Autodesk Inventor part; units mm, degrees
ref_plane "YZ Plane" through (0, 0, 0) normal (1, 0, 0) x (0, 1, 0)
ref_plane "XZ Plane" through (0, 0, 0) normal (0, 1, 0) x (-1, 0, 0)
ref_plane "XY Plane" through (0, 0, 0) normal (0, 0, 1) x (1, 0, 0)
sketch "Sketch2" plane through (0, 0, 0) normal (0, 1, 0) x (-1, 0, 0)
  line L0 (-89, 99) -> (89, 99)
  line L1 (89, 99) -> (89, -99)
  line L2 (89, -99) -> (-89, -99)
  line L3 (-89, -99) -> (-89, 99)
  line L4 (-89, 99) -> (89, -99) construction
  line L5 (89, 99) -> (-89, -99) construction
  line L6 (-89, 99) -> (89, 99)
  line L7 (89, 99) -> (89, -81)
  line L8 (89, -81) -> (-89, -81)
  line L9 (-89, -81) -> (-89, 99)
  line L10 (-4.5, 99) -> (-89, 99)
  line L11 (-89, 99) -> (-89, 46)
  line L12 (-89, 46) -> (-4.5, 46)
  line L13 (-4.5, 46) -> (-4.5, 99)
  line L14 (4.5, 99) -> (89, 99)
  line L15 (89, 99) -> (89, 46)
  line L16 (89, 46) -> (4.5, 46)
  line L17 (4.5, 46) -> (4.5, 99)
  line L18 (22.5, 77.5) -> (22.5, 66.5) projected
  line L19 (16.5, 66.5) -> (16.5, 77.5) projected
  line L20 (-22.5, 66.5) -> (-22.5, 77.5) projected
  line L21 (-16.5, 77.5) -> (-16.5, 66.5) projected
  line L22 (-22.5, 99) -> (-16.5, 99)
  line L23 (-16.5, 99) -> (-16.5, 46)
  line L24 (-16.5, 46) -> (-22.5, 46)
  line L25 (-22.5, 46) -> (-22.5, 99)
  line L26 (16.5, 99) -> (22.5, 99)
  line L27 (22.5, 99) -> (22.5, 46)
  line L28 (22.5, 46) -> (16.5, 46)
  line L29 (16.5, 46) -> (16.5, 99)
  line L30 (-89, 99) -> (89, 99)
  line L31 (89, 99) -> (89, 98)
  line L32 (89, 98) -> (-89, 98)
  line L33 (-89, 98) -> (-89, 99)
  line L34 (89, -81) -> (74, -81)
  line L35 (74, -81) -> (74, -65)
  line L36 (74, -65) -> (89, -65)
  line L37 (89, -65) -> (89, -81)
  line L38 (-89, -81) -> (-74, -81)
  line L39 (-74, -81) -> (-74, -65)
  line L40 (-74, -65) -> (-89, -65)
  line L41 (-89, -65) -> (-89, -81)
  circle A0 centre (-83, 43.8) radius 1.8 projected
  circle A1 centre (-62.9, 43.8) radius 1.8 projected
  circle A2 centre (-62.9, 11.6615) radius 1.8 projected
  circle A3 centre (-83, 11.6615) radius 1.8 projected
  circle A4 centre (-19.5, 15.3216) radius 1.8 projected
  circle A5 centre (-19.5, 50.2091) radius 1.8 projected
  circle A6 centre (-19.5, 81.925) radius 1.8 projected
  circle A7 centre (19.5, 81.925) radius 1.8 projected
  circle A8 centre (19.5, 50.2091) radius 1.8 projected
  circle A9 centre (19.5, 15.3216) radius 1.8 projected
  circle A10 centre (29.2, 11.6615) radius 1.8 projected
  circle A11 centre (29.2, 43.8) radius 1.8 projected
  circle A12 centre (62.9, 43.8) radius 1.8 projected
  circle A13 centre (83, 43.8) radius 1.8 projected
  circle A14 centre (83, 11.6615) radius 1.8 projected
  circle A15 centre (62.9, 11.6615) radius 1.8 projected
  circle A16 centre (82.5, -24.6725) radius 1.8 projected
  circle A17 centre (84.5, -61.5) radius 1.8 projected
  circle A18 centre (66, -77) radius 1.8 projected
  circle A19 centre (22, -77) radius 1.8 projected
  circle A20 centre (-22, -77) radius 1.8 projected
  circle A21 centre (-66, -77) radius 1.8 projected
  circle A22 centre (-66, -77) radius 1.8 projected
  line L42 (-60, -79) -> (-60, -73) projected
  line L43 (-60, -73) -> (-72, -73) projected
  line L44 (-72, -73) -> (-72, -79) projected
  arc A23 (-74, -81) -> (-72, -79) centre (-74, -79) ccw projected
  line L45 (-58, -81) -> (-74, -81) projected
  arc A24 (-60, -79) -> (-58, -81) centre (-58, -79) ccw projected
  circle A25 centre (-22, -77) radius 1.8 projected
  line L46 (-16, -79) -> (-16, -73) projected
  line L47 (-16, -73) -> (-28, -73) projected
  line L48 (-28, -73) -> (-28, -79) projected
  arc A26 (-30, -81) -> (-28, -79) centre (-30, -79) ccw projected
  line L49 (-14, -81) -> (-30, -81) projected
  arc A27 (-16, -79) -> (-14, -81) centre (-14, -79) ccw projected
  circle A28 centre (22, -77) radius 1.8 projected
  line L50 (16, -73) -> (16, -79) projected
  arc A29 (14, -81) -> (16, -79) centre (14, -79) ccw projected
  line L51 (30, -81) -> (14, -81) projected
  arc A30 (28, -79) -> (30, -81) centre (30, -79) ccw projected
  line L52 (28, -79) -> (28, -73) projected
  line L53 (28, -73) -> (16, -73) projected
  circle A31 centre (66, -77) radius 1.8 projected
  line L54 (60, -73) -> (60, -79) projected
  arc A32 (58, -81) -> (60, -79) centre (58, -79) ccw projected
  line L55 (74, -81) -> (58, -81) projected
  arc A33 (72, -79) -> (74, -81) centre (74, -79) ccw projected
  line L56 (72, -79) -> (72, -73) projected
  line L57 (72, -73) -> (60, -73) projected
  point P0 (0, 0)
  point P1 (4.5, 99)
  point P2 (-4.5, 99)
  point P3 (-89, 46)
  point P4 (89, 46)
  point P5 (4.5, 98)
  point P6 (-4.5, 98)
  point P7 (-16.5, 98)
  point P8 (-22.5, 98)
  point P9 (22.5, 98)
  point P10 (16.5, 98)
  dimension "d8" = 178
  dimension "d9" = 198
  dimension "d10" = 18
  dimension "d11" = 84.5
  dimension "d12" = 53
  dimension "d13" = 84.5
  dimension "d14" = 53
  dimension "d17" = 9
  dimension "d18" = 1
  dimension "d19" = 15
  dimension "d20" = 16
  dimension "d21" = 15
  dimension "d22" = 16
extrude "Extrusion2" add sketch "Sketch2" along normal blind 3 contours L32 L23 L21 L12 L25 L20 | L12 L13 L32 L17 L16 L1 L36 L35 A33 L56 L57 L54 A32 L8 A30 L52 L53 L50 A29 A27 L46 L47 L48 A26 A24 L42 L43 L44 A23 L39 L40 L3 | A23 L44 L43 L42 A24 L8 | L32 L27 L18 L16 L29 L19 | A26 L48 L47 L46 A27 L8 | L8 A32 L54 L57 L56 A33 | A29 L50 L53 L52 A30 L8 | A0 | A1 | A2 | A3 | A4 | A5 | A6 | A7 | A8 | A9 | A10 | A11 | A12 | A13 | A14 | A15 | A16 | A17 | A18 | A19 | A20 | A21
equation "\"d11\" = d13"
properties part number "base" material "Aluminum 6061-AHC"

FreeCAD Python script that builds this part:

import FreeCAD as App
import Part
import Sketcher
Q = App.Units.Quantity

doc = App.newDocument("Part")
body = doc.addObject("PartDesign::Body", "Body")

# Sketch on XZ plane
sketch1 = body.newObject("Sketcher::SketchObject", "Sketch")
sketch1.AttachmentSupport = (doc.getObject("XZ_Plane"), [""])
sketch1.MapMode = "FlatFace"
sketch1.addGeometry([
    Part.LineSegment(App.Vector(16.5, 98, 0), App.Vector(22.5, 98, 0)),  # 0
    Part.LineSegment(App.Vector(22.5, 98, 0), App.Vector(22.5, 46, 0)),  # 1
    Part.LineSegment(App.Vector(22.5, 46, 0), App.Vector(89, 46, 0)),  # 2
    Part.LineSegment(App.Vector(89, 46, 0), App.Vector(89, -65, 0)),  # 3
    Part.LineSegment(App.Vector(89, -65, 0), App.Vector(74, -65, 0)),  # 4
    Part.LineSegment(App.Vector(74, -65, 0), App.Vector(74, -81, 0)),  # 5
    Part.LineSegment(App.Vector(74, -81, 0), App.Vector(-74, -81, 0)),  # 6
    Part.LineSegment(App.Vector(-74, -81, 0), App.Vector(-74, -65, 0)),  # 7
    Part.LineSegment(App.Vector(-74, -65, 0), App.Vector(-89, -65, 0)),  # 8
    Part.LineSegment(App.Vector(-89, -65, 0), App.Vector(-89, 46, 0)),  # 9
    Part.LineSegment(App.Vector(-89, 46, 0), App.Vector(-22.5, 46, 0)),  # 10
    Part.LineSegment(App.Vector(-22.5, 46, 0), App.Vector(-22.5, 98, 0)),  # 11
    Part.LineSegment(App.Vector(-22.5, 98, 0), App.Vector(-16.5, 98, 0)),  # 12
    Part.LineSegment(App.Vector(-16.5, 98, 0), App.Vector(-16.5, 46, 0)),  # 13
    Part.LineSegment(App.Vector(-16.5, 46, 0), App.Vector(-4.5, 46, 0)),  # 14
    Part.LineSegment(App.Vector(-4.5, 46, 0), App.Vector(-4.5, 98, 0)),  # 15
    Part.LineSegment(App.Vector(-4.5, 98, 0), App.Vector(4.5, 98, 0)),  # 16
    Part.LineSegment(App.Vector(4.5, 98, 0), App.Vector(4.5, 46, 0)),  # 17
    Part.LineSegment(App.Vector(4.5, 46, 0), App.Vector(16.5, 46, 0)),  # 18
    Part.LineSegment(App.Vector(16.5, 46, 0), App.Vector(16.5, 98, 0)),  # 19
], False)
sketch1.addConstraint([
    Sketcher.Constraint("Coincident", 0, 2, 1, 1),
    Sketcher.Constraint("Coincident", 1, 2, 2, 1),
    Sketcher.Constraint("Coincident", 2, 2, 3, 1),
    Sketcher.Constraint("Coincident", 3, 2, 4, 1),
    Sketcher.Constraint("Coincident", 4, 2, 5, 1),
    Sketcher.Constraint("Coincident", 5, 2, 6, 1),
    Sketcher.Constraint("Coincident", 6, 2, 7, 1),
    Sketcher.Constraint("Coincident", 7, 2, 8, 1),
    Sketcher.Constraint("Coincident", 8, 2, 9, 1),
    Sketcher.Constraint("Coincident", 9, 2, 10, 1),
    Sketcher.Constraint("Coincident", 10, 2, 11, 1),
    Sketcher.Constraint("Coincident", 11, 2, 12, 1),
    Sketcher.Constraint("Coincident", 12, 2, 13, 1),
    Sketcher.Constraint("Coincident", 13, 2, 14, 1),
    Sketcher.Constraint("Coincident", 14, 2, 15, 1),
    Sketcher.Constraint("Coincident", 15, 2, 16, 1),
    Sketcher.Constraint("Coincident", 16, 2, 17, 1),
    Sketcher.Constraint("Coincident", 17, 2, 18, 1),
    Sketcher.Constraint("Coincident", 18, 2, 19, 1),
    Sketcher.Constraint("Coincident", 19, 2, 0, 1),
    Sketcher.Constraint("Horizontal", 0),
    Sketcher.Constraint("Vertical", 1),
    Sketcher.Constraint("Horizontal", 2),
    Sketcher.Constraint("Vertical", 3),
    Sketcher.Constraint("Horizontal", 4),
    Sketcher.Constraint("Vertical", 5),
    Sketcher.Constraint("Horizontal", 6),
    Sketcher.Constraint("Vertical", 7),
    Sketcher.Constraint("Horizontal", 8),
    Sketcher.Constraint("Vertical", 9),
    Sketcher.Constraint("Horizontal", 10),
    Sketcher.Constraint("Vertical", 11),
    Sketcher.Constraint("Horizontal", 12),
    Sketcher.Constraint("Vertical", 13),
    Sketcher.Constraint("Horizontal", 14),
    Sketcher.Constraint("Vertical", 15),
    Sketcher.Constraint("Horizontal", 16),
    Sketcher.Constraint("Vertical", 17),
    Sketcher.Constraint("Horizontal", 18),
    Sketcher.Constraint("Vertical", 19),
    Sketcher.Constraint("Symmetric", 4, 2, 7, 2, -2),
    Sketcher.Constraint("Symmetric", 2, 2, 9, 2, -2),
    Sketcher.Constraint("Symmetric", 0, 2, 11, 2, -2),
    Sketcher.Constraint("Symmetric", 14, 2, 17, 2, -2),
    Sketcher.Constraint("Horizontal", 10, 2, 13, 2),
    Sketcher.Constraint("Horizontal", 12, 2, 15, 2),
    Sketcher.Constraint("Equal", 0, 12),
    Sketcher.Constraint("DistanceX", 4, 2, 4, 1, Q("15 mm")),
    Sketcher.Constraint("DistanceX", 16, 1, 16, 2, Q("9 mm")),
    Sketcher.Constraint("DistanceY", 5, 2, 5, 1, Q("16 mm")),
    Sketcher.Constraint("DistanceX", 10, 2, 14, 2, Q("18 mm")),
    Sketcher.Constraint("DistanceX", 0, 1, 0, 2, Q("6 mm")),
    Sketcher.Constraint("DistanceX", 6, 2, 6, 1, Q("148 mm")),
    Sketcher.Constraint("DistanceY", 1, 2, 1, 1, Q("52 mm")),
    Sketcher.Constraint("DistanceY", 3, 2, 3, 1, Q("111 mm")),
    Sketcher.Constraint("DistanceY", -1, 1, 0, 2, Q("98 mm")),
])
pad1 = body.newObject("PartDesign::Pad", "Pad")
pad1.Profile = sketch1
pad1.Length = 3
pad1.Reversed = True

doc.recompute()
